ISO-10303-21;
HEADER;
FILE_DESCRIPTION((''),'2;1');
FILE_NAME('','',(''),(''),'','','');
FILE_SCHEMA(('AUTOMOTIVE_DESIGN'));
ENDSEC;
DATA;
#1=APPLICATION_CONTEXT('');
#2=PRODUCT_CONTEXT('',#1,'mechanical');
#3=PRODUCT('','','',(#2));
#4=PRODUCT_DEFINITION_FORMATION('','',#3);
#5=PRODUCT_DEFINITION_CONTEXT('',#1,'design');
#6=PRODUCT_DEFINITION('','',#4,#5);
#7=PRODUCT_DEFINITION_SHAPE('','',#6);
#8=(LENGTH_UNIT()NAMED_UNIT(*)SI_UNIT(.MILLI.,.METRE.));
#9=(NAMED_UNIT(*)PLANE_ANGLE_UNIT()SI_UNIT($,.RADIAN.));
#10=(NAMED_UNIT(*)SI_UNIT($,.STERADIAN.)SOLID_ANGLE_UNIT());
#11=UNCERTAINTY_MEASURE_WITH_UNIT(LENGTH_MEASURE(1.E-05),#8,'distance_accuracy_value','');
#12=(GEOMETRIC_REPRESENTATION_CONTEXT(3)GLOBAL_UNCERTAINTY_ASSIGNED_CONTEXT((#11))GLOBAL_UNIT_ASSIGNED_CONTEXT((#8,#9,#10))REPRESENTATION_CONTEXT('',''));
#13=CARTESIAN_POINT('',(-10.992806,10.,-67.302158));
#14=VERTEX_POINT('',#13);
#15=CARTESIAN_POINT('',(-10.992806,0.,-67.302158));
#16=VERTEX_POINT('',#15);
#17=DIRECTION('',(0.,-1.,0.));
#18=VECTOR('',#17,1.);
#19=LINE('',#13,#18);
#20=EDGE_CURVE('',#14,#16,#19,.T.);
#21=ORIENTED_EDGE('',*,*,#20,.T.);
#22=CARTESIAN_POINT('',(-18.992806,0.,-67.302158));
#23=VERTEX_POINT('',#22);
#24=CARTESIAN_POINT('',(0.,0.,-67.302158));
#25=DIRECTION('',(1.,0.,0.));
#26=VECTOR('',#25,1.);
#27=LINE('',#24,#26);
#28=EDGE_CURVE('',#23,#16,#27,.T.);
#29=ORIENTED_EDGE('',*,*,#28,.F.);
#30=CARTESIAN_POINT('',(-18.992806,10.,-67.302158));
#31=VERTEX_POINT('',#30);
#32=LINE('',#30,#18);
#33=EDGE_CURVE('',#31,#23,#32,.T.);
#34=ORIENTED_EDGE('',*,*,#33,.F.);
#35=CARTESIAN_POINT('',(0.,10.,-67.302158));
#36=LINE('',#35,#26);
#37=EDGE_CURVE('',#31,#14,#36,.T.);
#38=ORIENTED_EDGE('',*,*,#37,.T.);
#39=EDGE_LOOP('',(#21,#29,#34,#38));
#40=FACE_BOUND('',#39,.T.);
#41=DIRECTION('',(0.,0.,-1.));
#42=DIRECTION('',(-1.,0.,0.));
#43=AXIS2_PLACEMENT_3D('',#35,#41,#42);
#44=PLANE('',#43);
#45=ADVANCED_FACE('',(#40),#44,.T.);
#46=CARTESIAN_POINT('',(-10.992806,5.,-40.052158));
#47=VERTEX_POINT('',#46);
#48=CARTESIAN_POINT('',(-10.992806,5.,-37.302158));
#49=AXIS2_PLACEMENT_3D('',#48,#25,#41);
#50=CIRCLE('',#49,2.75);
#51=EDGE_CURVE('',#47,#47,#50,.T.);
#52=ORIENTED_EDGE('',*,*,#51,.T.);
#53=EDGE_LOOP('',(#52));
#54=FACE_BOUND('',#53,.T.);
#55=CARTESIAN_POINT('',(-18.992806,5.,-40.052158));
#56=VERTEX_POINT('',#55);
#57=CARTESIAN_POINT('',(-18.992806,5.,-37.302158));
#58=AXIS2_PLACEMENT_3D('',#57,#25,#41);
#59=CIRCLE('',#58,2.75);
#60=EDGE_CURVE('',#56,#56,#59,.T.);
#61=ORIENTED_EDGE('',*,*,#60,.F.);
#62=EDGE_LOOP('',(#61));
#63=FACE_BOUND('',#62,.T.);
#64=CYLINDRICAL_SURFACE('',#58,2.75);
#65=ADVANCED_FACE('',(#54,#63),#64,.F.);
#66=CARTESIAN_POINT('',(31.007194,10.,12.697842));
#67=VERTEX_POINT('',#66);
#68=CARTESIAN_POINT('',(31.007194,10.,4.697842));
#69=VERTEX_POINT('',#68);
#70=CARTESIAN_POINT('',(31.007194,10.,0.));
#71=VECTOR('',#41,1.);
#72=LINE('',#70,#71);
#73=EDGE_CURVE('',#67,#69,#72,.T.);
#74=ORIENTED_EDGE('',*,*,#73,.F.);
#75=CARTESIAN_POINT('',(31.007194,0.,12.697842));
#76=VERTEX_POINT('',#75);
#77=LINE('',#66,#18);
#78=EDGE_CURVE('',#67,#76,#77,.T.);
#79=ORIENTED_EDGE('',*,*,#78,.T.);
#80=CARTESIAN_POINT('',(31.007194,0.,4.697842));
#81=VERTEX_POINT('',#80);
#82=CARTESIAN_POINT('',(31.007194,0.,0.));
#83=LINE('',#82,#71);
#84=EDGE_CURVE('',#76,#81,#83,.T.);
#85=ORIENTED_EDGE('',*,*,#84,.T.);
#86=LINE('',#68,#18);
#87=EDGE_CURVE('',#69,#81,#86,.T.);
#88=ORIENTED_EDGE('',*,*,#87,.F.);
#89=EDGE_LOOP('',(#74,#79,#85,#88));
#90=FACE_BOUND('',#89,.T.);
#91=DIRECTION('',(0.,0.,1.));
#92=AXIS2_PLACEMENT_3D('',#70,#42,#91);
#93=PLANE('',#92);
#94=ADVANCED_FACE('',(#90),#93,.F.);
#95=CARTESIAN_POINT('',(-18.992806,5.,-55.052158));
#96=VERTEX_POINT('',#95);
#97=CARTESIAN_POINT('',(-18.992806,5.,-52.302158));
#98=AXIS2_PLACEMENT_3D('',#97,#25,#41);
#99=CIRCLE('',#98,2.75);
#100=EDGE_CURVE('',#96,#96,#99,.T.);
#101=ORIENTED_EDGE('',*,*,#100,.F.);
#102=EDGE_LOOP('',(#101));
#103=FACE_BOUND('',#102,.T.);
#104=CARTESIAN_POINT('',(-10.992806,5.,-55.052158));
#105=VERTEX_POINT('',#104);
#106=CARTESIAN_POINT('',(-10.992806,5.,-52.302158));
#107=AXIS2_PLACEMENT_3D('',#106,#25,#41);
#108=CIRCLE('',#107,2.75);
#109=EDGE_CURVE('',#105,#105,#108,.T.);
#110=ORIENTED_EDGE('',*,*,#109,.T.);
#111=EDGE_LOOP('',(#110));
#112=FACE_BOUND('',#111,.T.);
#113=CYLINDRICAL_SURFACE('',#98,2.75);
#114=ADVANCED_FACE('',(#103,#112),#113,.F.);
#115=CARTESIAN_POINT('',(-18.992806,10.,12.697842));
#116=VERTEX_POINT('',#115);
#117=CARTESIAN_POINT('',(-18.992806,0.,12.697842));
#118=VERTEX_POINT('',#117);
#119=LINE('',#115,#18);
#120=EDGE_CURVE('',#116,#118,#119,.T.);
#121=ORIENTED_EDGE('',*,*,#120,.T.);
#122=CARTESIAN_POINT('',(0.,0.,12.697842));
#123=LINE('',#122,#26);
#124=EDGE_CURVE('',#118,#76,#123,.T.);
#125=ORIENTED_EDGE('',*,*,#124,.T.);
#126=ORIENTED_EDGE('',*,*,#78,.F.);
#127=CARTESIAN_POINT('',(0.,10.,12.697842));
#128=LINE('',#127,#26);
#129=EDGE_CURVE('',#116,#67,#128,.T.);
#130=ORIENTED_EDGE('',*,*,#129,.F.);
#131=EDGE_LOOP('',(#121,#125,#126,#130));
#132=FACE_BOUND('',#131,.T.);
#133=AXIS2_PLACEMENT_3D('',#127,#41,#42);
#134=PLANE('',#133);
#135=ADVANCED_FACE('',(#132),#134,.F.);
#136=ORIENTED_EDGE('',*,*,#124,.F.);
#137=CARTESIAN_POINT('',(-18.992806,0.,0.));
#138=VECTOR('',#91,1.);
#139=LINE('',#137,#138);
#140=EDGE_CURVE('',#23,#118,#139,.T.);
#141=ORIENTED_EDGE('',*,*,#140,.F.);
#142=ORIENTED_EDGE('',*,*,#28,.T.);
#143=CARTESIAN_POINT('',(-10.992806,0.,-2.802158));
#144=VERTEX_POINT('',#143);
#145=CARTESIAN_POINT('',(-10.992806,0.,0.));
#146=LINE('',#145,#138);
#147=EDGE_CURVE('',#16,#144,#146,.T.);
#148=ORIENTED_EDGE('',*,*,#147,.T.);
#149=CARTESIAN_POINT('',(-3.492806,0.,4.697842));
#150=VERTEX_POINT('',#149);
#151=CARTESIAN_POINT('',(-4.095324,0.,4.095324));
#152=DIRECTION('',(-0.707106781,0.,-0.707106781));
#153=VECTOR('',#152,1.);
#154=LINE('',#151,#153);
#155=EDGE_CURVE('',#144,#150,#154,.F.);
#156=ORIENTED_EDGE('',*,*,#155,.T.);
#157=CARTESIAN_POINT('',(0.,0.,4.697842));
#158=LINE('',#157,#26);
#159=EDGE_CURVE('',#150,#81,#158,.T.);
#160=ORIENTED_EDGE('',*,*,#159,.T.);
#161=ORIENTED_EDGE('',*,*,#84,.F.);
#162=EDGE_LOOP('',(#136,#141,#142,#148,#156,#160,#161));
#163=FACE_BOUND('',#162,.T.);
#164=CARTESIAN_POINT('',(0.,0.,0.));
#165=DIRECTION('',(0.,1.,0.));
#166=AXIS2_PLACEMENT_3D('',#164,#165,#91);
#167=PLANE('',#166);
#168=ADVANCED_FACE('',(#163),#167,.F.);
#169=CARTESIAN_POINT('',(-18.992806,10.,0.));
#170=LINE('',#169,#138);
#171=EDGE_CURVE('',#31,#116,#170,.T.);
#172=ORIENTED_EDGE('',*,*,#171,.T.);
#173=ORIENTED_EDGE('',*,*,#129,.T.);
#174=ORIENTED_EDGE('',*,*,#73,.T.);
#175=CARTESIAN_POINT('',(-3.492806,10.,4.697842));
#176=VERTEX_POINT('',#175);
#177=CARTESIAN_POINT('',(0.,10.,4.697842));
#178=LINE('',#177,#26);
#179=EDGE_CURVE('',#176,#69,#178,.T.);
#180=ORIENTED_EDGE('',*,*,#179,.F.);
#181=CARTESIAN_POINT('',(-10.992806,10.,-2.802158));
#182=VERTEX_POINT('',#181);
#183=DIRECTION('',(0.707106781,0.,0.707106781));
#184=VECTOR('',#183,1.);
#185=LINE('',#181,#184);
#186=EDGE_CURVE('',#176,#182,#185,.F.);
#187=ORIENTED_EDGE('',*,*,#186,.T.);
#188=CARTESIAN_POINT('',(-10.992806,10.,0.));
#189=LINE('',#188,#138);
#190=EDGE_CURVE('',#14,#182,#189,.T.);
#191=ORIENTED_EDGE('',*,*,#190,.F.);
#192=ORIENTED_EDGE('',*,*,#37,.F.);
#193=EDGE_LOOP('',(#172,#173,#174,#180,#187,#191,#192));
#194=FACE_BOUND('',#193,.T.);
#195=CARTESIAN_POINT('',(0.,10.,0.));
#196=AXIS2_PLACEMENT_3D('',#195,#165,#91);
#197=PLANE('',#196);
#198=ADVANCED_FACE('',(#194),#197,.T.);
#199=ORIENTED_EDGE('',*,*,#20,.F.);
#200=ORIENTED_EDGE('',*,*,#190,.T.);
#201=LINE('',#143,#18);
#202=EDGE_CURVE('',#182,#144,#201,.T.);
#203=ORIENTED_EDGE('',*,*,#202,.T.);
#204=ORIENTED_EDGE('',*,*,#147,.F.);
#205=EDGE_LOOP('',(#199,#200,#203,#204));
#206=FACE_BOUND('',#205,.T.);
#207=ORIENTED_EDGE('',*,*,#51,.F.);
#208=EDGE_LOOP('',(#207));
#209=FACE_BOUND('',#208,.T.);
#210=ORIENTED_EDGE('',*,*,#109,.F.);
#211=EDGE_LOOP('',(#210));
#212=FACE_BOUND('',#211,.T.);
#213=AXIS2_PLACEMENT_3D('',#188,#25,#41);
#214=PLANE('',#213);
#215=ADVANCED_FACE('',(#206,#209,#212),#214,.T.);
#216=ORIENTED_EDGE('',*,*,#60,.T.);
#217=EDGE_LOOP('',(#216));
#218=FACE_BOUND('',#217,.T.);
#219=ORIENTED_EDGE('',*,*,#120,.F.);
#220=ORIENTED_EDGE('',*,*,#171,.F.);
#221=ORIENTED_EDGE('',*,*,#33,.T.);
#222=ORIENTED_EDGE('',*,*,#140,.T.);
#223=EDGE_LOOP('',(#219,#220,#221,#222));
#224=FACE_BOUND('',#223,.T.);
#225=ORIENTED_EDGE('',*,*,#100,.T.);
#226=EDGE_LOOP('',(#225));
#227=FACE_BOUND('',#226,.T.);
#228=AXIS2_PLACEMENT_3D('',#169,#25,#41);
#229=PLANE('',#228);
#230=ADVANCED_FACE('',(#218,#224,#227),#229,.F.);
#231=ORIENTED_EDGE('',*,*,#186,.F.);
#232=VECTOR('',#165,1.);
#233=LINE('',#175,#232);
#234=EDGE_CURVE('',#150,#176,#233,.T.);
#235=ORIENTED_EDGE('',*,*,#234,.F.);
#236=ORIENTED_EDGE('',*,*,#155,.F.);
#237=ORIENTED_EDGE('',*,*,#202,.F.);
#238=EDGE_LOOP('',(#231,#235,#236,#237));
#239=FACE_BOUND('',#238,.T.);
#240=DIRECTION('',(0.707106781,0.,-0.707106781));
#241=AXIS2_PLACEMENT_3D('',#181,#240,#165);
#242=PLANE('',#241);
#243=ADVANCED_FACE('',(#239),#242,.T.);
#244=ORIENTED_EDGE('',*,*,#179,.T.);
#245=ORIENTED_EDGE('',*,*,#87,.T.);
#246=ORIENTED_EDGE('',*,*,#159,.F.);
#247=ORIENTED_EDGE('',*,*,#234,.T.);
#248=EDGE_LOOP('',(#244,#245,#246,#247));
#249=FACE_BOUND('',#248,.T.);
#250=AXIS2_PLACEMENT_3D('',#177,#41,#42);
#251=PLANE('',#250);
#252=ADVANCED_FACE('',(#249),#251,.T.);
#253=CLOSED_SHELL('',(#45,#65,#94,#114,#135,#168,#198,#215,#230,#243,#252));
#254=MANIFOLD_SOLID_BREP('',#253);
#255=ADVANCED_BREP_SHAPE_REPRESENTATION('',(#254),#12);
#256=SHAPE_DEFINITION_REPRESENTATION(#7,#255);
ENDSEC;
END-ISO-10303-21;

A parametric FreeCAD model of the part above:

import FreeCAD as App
import Part
import Sketcher
from FreeCAD import Vector


def edges_at(feature, points):
    """Names of the edges that pass closest to the given points."""
    edges = feature.Shape.Edges
    near = lambda p: min(range(len(edges)), key=lambda i: edges[i].distToShape(Part.Vertex(*p))[0])
    return sorted({f"Edge{near(p) + 1}" for p in points})


def add_polygon(sketch, points):
    """Adds a closed chain of lines whose ends are joined by coincident constraints."""
    first, n = sketch.GeometryCount, len(points)
    for a, b in zip(points, points[1:] + points[:1]):
        sketch.addGeometry(Part.LineSegment(App.Vector(*a, 0), App.Vector(*b, 0)), False)
    for i in range(n):
        sketch.addConstraint(Sketcher.Constraint("Coincident", first + i, 2, first + (i + 1) % n, 1))

doc = App.newDocument("Part")
body = doc.addObject("PartDesign::Body", "Body")

# Sketch on XZ plane
sketch1 = body.newObject("Sketcher::SketchObject", "Sketch")
sketch1.AttachmentSupport = (doc.getObject("XZ_Plane"), [""])
sketch1.MapMode = "FlatFace"
add_polygon(sketch1, [(-11, -67), (-19, -67), (-19, 13), (31, 13), (31, 5), (-11, 5)])  # lines 0-5
sketch1.addConstraint(Sketcher.Constraint("Horizontal", 0))
sketch1.addConstraint(Sketcher.Constraint("Vertical", 1))
sketch1.addConstraint(Sketcher.Constraint("Horizontal", 2))
sketch1.addConstraint(Sketcher.Constraint("Vertical", 3))
sketch1.addConstraint(Sketcher.Constraint("Horizontal", 4))
sketch1.addConstraint(Sketcher.Constraint("Vertical", 5))
sketch1.addConstraint(Sketcher.Constraint("Equal", 0, 3))
sketch1.addConstraint(Sketcher.Constraint("DistanceX", 0, 2, 0, 1, 8.0))
sketch1.addConstraint(Sketcher.Constraint("DistanceX", 2, 1, 2, 2, 50.0))
sketch1.addConstraint(Sketcher.Constraint("DistanceY", 1, 1, 1, 2, 80.0))
sketch1.addConstraint(Sketcher.Constraint("DistanceY", 0, 2, -1, 1, 67.302158))
sketch1.addConstraint(Sketcher.Constraint("DistanceX", 0, 2, -1, 1, 18.992806))
pad1 = body.newObject("PartDesign::Pad", "Pad")
pad1.Profile = sketch1
pad1.Length = 10
pad1.Reversed = True
doc.recompute()

chamfer = body.newObject("PartDesign::Chamfer", "Chamfer")
chamfer.Base = (pad1, edges_at(pad1, [(-10.993, 5, 4.698)]))
chamfer.Size = 7.5

# Sketch on YZ plane
sketch2 = body.newObject("Sketcher::SketchObject", "Sketch001")
sketch2.AttachmentSupport = (doc.getObject("YZ_Plane"), [""])
sketch2.MapMode = "FlatFace"
sketch2.AttachmentOffset = App.Placement(Vector(0, 0, -10.992806), App.Rotation())
sketch2.addGeometry(Part.Circle(Vector(5, -37.3, 0), Vector(0, 0, 1), 2.8), False)
sketch2.addGeometry(Part.Circle(Vector(5, -52.3, 0), Vector(0, 0, 1), 2.8), False)
sketch2.addConstraint(Sketcher.Constraint("Equal", 0, 1))
sketch2.addConstraint(Sketcher.Constraint("Vertical", 0, 3, 1, 3))
sketch2.addConstraint(Sketcher.Constraint("Diameter", 0, 5.5))
sketch2.addConstraint(Sketcher.Constraint("DistanceX", -1, 1, 0, 3, 5.0))
sketch2.addConstraint(Sketcher.Constraint("DistanceY", 1, 3, 0, 3, 15.0))
sketch2.addConstraint(Sketcher.Constraint("DistanceY", 0, 3, -1, 1, 37.302158))
pocket1 = body.newObject("PartDesign::Pocket", "Pocket")
pocket1.Profile = sketch2
pocket1.Type = "ThroughAll"

doc.recompute()
